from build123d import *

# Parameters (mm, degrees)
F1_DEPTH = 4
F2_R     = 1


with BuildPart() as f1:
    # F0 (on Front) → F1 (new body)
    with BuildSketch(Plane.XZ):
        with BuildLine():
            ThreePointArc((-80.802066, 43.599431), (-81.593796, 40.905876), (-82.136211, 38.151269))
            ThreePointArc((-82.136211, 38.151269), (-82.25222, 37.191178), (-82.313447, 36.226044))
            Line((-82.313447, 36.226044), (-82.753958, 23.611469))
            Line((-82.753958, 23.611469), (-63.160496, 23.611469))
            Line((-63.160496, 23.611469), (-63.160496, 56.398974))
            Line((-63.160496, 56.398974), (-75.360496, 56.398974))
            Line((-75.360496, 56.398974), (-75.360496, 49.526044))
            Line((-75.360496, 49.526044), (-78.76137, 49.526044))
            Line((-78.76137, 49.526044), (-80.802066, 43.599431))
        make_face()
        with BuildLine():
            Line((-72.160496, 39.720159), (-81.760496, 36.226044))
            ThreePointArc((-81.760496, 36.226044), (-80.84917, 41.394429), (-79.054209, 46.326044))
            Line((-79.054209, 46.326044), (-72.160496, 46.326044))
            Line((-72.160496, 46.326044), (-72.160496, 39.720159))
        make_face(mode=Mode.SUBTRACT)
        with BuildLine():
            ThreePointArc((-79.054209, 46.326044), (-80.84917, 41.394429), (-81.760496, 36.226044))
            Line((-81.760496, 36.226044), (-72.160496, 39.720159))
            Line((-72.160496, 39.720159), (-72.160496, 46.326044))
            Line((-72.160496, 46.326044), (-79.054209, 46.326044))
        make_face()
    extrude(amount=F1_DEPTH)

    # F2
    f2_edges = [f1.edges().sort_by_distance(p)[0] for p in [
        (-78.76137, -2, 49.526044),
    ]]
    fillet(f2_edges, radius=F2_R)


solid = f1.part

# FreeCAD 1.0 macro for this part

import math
import FreeCAD as App
import Part
import Sketcher

V = App.Vector
Q = App.Units.Quantity


def edges_at(feature, points):
    """Names of the edges that pass closest to the given points."""
    edges = feature.Shape.Edges
    near = lambda p: min(range(len(edges)), key=lambda i: edges[i].distToShape(Part.Vertex(*p))[0])
    return sorted({f"Edge{near(p) + 1}" for p in points})

doc = App.newDocument("Part")
params = doc.addObject("Spreadsheet::Sheet", "Params")
for row, (alias, value) in enumerate([
    ("sketch1_width", "12.2 mm"),
    ("pad1_length", "4 mm"),
    ("fillet_radius", "1 mm"),
], start=1):
    params.set(f"A{row}", alias)
    params.set(f"B{row}", "=" + value)
    params.setAlias(f"B{row}", alias)

body = doc.addObject("PartDesign::Body", "Body")

sketch1 = body.newObject("Sketcher::SketchObject", "Sketch")
sketch1.AttachmentSupport = (doc.getObject("XZ_Plane"), [""])
sketch1.MapMode = "FlatFace"
sketch1.addGeometry([
    Part.ArcOfCircle(Part.Circle(V(-51.767439, 33.602003, 0), V(0, 0, 1), 30.707624), math.radians(160.999992), math.radians(171.480397)),
    Part.ArcOfCircle(Part.Circle(V(-65.323787, 35.632748, 0), V(0, 0, 1), 17.000016), math.radians(171.480377), math.radians(177.999988)),
    Part.LineSegment(V(-82.313447, 36.226044, 0), V(-82.753958, 23.611469, 0)),
    Part.LineSegment(V(-82.753958, 23.611469, 0), V(-63.160496, 23.611469, 0)),
    Part.LineSegment(V(-63.160496, 23.611469, 0), V(-63.160496, 56.398974, 0)),
    Part.LineSegment(V(-63.160496, 56.398974, 0), V(-75.360496, 56.398974, 0)),
    Part.LineSegment(V(-75.360496, 56.398974, 0), V(-75.360496, 49.526044, 0)),
    Part.LineSegment(V(-75.360496, 49.526044, 0), V(-78.76137, 49.526044, 0)),
    Part.LineSegment(V(-78.76137, 49.526044, 0), V(-80.802066, 43.599431, 0)),
], False)
sketch1.addConstraint([
    Sketcher.Constraint("Tangent", 0, 2, 1, 1),
    Sketcher.Constraint("Tangent", 1, 2, 2, 1),
    Sketcher.Constraint("Coincident", 2, 2, 3, 1),
    Sketcher.Constraint("Coincident", 3, 2, 4, 1),
    Sketcher.Constraint("Coincident", 4, 2, 5, 1),
    Sketcher.Constraint("Coincident", 5, 2, 6, 1),
    Sketcher.Constraint("Coincident", 6, 2, 7, 1),
    Sketcher.Constraint("Coincident", 7, 2, 8, 1),
    Sketcher.Constraint("Tangent", 8, 2, 0, 1),
    Sketcher.Constraint("Horizontal", 3),
    Sketcher.Constraint("Vertical", 4),
    Sketcher.Constraint("Horizontal", 5),
    Sketcher.Constraint("Vertical", 6),
    Sketcher.Constraint("Horizontal", 7),
    Sketcher.Constraint("Angle", 2, Q("-92.000002 deg")),
    Sketcher.Constraint("Angle", 8, Q("-108.999996 deg")),
    Sketcher.Constraint("DistanceX", 5, 2, 5, 1, Q("12.2 mm")),
    Sketcher.Constraint("DistanceY", 1, 2, 6, 2, Q("13.3 mm")),
    Sketcher.Constraint("Radius", 0, Q("30.707624 mm")),
    Sketcher.Constraint("Radius", 1, Q("17.000016 mm")),
    Sketcher.Constraint("DistanceX", 3, 1, 3, 2, Q("19.593462 mm")),
    Sketcher.Constraint("DistanceY", 6, 2, 6, 1, Q("6.87293 mm")),
    Sketcher.Constraint("DistanceY", 2, 2, 0, 2, Q("14.5398 mm")),
    Sketcher.Constraint("Distance", 8, Q("6.268108 mm")),
    Sketcher.Constraint("DistanceX", 0, 3, -1, 1, Q("51.767439 mm")),
    Sketcher.Constraint("DistanceY", -1, 1, 1, 3, Q("35.632748 mm")),
])
sketch1.setExpression("Constraints[16]", "Params.sketch1_width")
pad1 = body.newObject("PartDesign::Pad", "Pad")
pad1.Profile = sketch1
pad1.setExpression("Length", "Params.pad1_length")
doc.recompute()

fillet = body.newObject("PartDesign::Fillet", "Fillet")
fillet.Base = (pad1, edges_at(pad1, [(-78.761, -2, 49.526)]))
fillet.setExpression("Radius", "Params.fillet_radius")

doc.recompute()
